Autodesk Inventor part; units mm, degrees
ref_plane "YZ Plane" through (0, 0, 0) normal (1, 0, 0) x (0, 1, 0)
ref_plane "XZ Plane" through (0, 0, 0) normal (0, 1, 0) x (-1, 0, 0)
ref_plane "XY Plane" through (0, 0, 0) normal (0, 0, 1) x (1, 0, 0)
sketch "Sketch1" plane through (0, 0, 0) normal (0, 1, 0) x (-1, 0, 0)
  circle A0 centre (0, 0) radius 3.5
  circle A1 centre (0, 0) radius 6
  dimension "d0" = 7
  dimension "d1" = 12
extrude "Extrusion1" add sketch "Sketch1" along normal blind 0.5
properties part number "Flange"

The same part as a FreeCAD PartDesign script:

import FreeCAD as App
import Part
import Sketcher
from FreeCAD import Vector
Q = App.Units.Quantity

doc = App.newDocument("Part")
params = doc.addObject("Spreadsheet::Sheet", "Params")
for row, (alias, value) in enumerate([
    ("sketch1_diameter", "12 mm"),
    ("sketch1_diameter2", "7 mm"),
    ("pad1_length", "0.5 mm"),
], start=1):
    params.set(f"A{row}", alias)
    params.set(f"B{row}", "=" + value)
    params.setAlias(f"B{row}", alias)

body = doc.addObject("PartDesign::Body", "Body")

sketch1 = body.newObject("Sketcher::SketchObject", "Sketch")
sketch1.AttachmentSupport = (doc.getObject("XZ_Plane"), [""])
sketch1.MapMode = "FlatFace"
sketch1.addGeometry([
    Part.Circle(Vector(0, 0, 0), Vector(0, 0, 1), 6),
    Part.Circle(Vector(0, 0, 0), Vector(0, 0, 1), 3.5),
], False)
sketch1.addConstraint([
    Sketcher.Constraint("Coincident", 0, 3, -1, 1),
    Sketcher.Constraint("Coincident", 1, 3, -1, 1),
    Sketcher.Constraint("Diameter", 0, Q("12 mm")),
    Sketcher.Constraint("Diameter", 1, Q("7 mm")),
])
sketch1.setExpression("Constraints[2]", "Params.sketch1_diameter")
sketch1.setExpression("Constraints[3]", "Params.sketch1_diameter2")
pad1 = body.newObject("PartDesign::Pad", "Pad")
pad1.Profile = sketch1
pad1.setExpression("Length", "Params.pad1_length")
pad1.Reversed = True

doc.recompute()
